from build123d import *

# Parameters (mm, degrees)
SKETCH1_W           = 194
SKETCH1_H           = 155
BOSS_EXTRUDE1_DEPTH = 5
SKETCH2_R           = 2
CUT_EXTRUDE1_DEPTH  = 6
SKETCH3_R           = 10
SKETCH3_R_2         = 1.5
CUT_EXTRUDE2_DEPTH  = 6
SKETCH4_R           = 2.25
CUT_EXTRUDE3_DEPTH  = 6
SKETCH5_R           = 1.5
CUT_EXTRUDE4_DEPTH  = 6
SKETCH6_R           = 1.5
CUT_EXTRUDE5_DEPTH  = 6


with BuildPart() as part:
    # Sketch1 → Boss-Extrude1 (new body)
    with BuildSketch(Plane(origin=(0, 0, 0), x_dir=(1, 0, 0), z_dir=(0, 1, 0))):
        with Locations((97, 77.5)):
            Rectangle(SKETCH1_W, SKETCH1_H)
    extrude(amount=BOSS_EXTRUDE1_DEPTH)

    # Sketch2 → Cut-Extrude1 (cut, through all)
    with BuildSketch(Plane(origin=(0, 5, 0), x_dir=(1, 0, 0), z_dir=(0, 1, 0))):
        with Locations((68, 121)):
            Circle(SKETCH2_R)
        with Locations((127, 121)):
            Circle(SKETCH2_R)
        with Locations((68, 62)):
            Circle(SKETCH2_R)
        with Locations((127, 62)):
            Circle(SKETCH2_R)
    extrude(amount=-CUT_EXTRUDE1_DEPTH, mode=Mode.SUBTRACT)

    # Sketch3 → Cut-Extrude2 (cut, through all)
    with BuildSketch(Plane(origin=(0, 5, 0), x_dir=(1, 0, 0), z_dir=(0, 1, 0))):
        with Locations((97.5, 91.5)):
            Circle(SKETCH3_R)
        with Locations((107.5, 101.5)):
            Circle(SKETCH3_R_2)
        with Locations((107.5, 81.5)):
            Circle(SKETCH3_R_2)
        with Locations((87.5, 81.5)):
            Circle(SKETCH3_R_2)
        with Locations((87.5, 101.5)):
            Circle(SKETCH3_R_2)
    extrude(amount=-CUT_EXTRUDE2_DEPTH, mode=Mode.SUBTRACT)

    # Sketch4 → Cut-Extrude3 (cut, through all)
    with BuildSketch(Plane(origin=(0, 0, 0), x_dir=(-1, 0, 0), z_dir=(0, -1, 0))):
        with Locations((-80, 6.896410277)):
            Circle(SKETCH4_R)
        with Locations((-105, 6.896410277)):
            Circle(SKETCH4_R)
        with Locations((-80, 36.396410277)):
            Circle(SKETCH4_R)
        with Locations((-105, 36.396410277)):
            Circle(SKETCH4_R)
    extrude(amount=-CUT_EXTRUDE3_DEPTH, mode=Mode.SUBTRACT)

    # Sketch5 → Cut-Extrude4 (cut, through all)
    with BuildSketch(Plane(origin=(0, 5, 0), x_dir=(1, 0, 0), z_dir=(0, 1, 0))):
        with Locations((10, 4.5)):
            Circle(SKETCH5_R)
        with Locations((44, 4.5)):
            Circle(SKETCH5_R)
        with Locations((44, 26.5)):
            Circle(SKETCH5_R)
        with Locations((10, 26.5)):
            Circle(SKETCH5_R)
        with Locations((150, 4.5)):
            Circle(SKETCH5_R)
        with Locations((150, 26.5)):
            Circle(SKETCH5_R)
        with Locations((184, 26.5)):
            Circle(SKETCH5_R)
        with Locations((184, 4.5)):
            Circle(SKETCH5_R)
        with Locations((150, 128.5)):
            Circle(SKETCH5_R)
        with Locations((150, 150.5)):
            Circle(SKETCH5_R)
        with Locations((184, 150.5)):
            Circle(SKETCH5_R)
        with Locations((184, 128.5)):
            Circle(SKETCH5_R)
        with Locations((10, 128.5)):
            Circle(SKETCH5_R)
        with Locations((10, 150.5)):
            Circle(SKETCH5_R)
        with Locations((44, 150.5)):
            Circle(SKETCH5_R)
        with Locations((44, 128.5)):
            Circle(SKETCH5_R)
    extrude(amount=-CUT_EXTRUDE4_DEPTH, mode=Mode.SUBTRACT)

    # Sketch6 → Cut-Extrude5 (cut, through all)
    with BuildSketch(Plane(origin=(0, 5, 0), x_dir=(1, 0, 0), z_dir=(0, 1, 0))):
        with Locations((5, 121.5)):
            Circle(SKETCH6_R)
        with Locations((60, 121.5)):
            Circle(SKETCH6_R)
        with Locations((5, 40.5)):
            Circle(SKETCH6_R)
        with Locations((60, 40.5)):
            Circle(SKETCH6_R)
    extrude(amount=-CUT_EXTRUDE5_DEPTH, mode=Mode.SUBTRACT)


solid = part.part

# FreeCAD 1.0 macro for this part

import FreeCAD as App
import Part
import Sketcher


def add_polygon(sketch, points):
    """Adds a closed chain of lines whose ends are joined by coincident constraints."""
    first, n = sketch.GeometryCount, len(points)
    for a, b in zip(points, points[1:] + points[:1]):
        sketch.addGeometry(Part.LineSegment(App.Vector(*a, 0), App.Vector(*b, 0)), False)
    for i in range(n):
        sketch.addConstraint(Sketcher.Constraint("Coincident", first + i, 2, first + (i + 1) % n, 1))

doc = App.newDocument("Part")
body = doc.addObject("PartDesign::Body", "Body")

# Sketch on XZ plane
sketch1 = body.newObject("Sketcher::SketchObject", "Sketch")
sketch1.AttachmentSupport = (doc.getObject("XZ_Plane"), [""])
sketch1.MapMode = "FlatFace"
add_polygon(sketch1, [(0, -155), (0, 0), (194, 0), (194, -155)])  # lines 0-3
sketch1.addConstraint(Sketcher.Constraint("Vertical", 0))
sketch1.addConstraint(Sketcher.Constraint("Horizontal", 1))
sketch1.addConstraint(Sketcher.Constraint("Vertical", 2))
sketch1.addConstraint(Sketcher.Constraint("Horizontal", 3))
sketch1.addConstraint(Sketcher.Constraint("Coincident", 0, 2, -1, 1))
sketch1.addConstraint(Sketcher.Constraint("DistanceX", 1, 1, 1, 2, 194.0))
sketch1.addConstraint(Sketcher.Constraint("DistanceY", 0, 1, 0, 2, 155.0))
pad1 = body.newObject("PartDesign::Pad", "Pad")
pad1.Profile = sketch1
pad1.Length = 5
pad1.Reversed = True

# Sketch on XZ plane
sketch2 = body.newObject("Sketcher::SketchObject", "Sketch001")
sketch2.AttachmentSupport = (doc.getObject("XZ_Plane"), [""])
sketch2.MapMode = "FlatFace"
sketch2.AttachmentOffset = App.Placement(App.Vector(0, 0, -5), App.Rotation())
sketch2.addGeometry(Part.Circle(App.Vector(68, -121, 0), App.Vector(0, 0, 1), 2), False)
sketch2.addGeometry(Part.Circle(App.Vector(127, -121, 0), App.Vector(0, 0, 1), 2), False)
sketch2.addGeometry(Part.Circle(App.Vector(68, -62, 0), App.Vector(0, 0, 1), 2), False)
sketch2.addGeometry(Part.Circle(App.Vector(127, -62, 0), App.Vector(0, 0, 1), 2), False)
sketch2.addConstraint(Sketcher.Constraint("Equal", 0, 1))
sketch2.addConstraint(Sketcher.Constraint("Equal", 1, 2))
sketch2.addConstraint(Sketcher.Constraint("Equal", 2, 3))
sketch2.addConstraint(Sketcher.Constraint("Horizontal", 0, 3, 1, 3))
sketch2.addConstraint(Sketcher.Constraint("Horizontal", 2, 3, 3, 3))
sketch2.addConstraint(Sketcher.Constraint("Vertical", 0, 3, 2, 3))
sketch2.addConstraint(Sketcher.Constraint("Vertical", 1, 3, 3, 3))
sketch2.addConstraint(Sketcher.Constraint("Diameter", 0, 4.0))
sketch2.addConstraint(Sketcher.Constraint("DistanceX", -1, 1, 0, 3, 68.0))
sketch2.addConstraint(Sketcher.Constraint("DistanceY", 0, 3, -1, 1, 121.0))
sketch2.addConstraint(Sketcher.Constraint("DistanceX", -1, 1, 1, 3, 127.0))
sketch2.addConstraint(Sketcher.Constraint("DistanceY", 2, 3, -1, 1, 62.0))
pocket1 = body.newObject("PartDesign::Pocket", "Pocket")
pocket1.Profile = sketch2
pocket1.Type = "ThroughAll"
pocket1.Reversed = True

# Sketch on XZ plane
sketch3 = body.newObject("Sketcher::SketchObject", "Sketch002")
sketch3.AttachmentSupport = (doc.getObject("XZ_Plane"), [""])
sketch3.MapMode = "FlatFace"
sketch3.AttachmentOffset = App.Placement(App.Vector(0, 0, -5), App.Rotation())
sketch3.addGeometry(Part.Circle(App.Vector(97.5, -91.5, 0), App.Vector(0, 0, 1), 10), False)
sketch3.addGeometry(Part.Circle(App.Vector(107.5, -101.5, 0), App.Vector(0, 0, 1), 1.5), False)
sketch3.addGeometry(Part.Circle(App.Vector(107.5, -81.5, 0), App.Vector(0, 0, 1), 1.5), False)
sketch3.addGeometry(Part.Circle(App.Vector(87.5, -81.5, 0), App.Vector(0, 0, 1), 1.5), False)
sketch3.addGeometry(Part.Circle(App.Vector(87.5, -101.5, 0), App.Vector(0, 0, 1), 1.5), False)
sketch3.addConstraint(Sketcher.Constraint("Equal", 1, 2))
sketch3.addConstraint(Sketcher.Constraint("Equal", 2, 3))
sketch3.addConstraint(Sketcher.Constraint("Equal", 3, 4))
sketch3.addConstraint(Sketcher.Constraint("Horizontal", 2, 3, 3, 3))
sketch3.addConstraint(Sketcher.Constraint("Horizontal", 1, 3, 4, 3))
sketch3.addConstraint(Sketcher.Constraint("Vertical", 1, 3, 2, 3))
sketch3.addConstraint(Sketcher.Constraint("Vertical", 3, 3, 4, 3))
sketch3.addConstraint(Sketcher.Constraint("Diameter", 0, 20.0))
sketch3.addConstraint(Sketcher.Constraint("Diameter", 1, 3.0))
sketch3.addConstraint(Sketcher.Constraint("DistanceX", 0, 3, 1, 3, 10.0))
sketch3.addConstraint(Sketcher.Constraint("DistanceY", 1, 3, 0, 3, 10.0))
sketch3.addConstraint(Sketcher.Constraint("DistanceY", 0, 3, 2, 3, 10.0))
sketch3.addConstraint(Sketcher.Constraint("DistanceX", 3, 3, 0, 3, 10.0))
sketch3.addConstraint(Sketcher.Constraint("DistanceX", -1, 1, 0, 3, 97.5))
sketch3.addConstraint(Sketcher.Constraint("DistanceY", 0, 3, -1, 1, 91.5))
pocket2 = body.newObject("PartDesign::Pocket", "Pocket001")
pocket2.Profile = sketch3
pocket2.Type = "ThroughAll"
pocket2.Reversed = True

# Sketch on XZ plane
sketch4 = body.newObject("Sketcher::SketchObject", "Sketch003")
sketch4.AttachmentSupport = (doc.getObject("XZ_Plane"), [""])
sketch4.MapMode = "FlatFace"
sketch4.addGeometry(Part.Circle(App.Vector(80, -6.89641, 0), App.Vector(0, 0, 1), 2.25), False)
sketch4.addGeometry(Part.Circle(App.Vector(105, -6.89641, 0), App.Vector(0, 0, 1), 2.25), False)
sketch4.addGeometry(Part.Circle(App.Vector(80, -36.39641, 0), App.Vector(0, 0, 1), 2.25), False)
sketch4.addGeometry(Part.Circle(App.Vector(105, -36.39641, 0), App.Vector(0, 0, 1), 2.25), False)
sketch4.addConstraint(Sketcher.Constraint("Equal", 0, 1))
sketch4.addConstraint(Sketcher.Constraint("Equal", 1, 2))
sketch4.addConstraint(Sketcher.Constraint("Equal", 2, 3))
sketch4.addConstraint(Sketcher.Constraint("Horizontal", 0, 3, 1, 3))
sketch4.addConstraint(Sketcher.Constraint("Horizontal", 2, 3, 3, 3))
sketch4.addConstraint(Sketcher.Constraint("Vertical", 0, 3, 2, 3))
sketch4.addConstraint(Sketcher.Constraint("Vertical", 1, 3, 3, 3))
sketch4.addConstraint(Sketcher.Constraint("Diameter", 0, 4.5))
sketch4.addConstraint(Sketcher.Constraint("DistanceX", -1, 1, 0, 3, 80.0))
sketch4.addConstraint(Sketcher.Constraint("DistanceX", -1, 1, 1, 3, 105.0))
sketch4.addConstraint(Sketcher.Constraint("DistanceY", 2, 3, 0, 3, 29.5))
sketch4.addConstraint(Sketcher.Constraint("DistanceY", 0, 3, -1, 1, 6.89641))
pocket3 = body.newObject("PartDesign::Pocket", "Pocket002")
pocket3.Profile = sketch4
pocket3.Type = "ThroughAll"

# Sketch on XZ plane
sketch5 = body.newObject("Sketcher::SketchObject", "Sketch004")
sketch5.AttachmentSupport = (doc.getObject("XZ_Plane"), [""])
sketch5.MapMode = "FlatFace"
sketch5.AttachmentOffset = App.Placement(App.Vector(0, 0, -5), App.Rotation())
sketch5.addGeometry(Part.Circle(App.Vector(10, -4.5, 0), App.Vector(0, 0, 1), 1.5), False)
sketch5.addGeometry(Part.Circle(App.Vector(44, -4.5, 0), App.Vector(0, 0, 1), 1.5), False)
sketch5.addGeometry(Part.Circle(App.Vector(44, -26.5, 0), App.Vector(0, 0, 1), 1.5), False)
sketch5.addGeometry(Part.Circle(App.Vector(10, -26.5, 0), App.Vector(0, 0, 1), 1.5), False)
sketch5.addGeometry(Part.Circle(App.Vector(150, -4.5, 0), App.Vector(0, 0, 1), 1.5), False)
sketch5.addGeometry(Part.Circle(App.Vector(150, -26.5, 0), App.Vector(0, 0, 1), 1.5), False)
sketch5.addGeometry(Part.Circle(App.Vector(184, -26.5, 0), App.Vector(0, 0, 1), 1.5), False)
sketch5.addGeometry(Part.Circle(App.Vector(184, -4.5, 0), App.Vector(0, 0, 1), 1.5), False)
sketch5.addGeometry(Part.Circle(App.Vector(150, -128.5, 0), App.Vector(0, 0, 1), 1.5), False)
sketch5.addGeometry(Part.Circle(App.Vector(150, -150.5, 0), App.Vector(0, 0, 1), 1.5), False)
sketch5.addGeometry(Part.Circle(App.Vector(184, -150.5, 0), App.Vector(0, 0, 1), 1.5), False)
sketch5.addGeometry(Part.Circle(App.Vector(184, -128.5, 0), App.Vector(0, 0, 1), 1.5), False)
sketch5.addGeometry(Part.Circle(App.Vector(10, -128.5, 0), App.Vector(0, 0, 1), 1.5), False)
sketch5.addGeometry(Part.Circle(App.Vector(10, -150.5, 0), App.Vector(0, 0, 1), 1.5), False)
sketch5.addGeometry(Part.Circle(App.Vector(44, -150.5, 0), App.Vector(0, 0, 1), 1.5), False)
sketch5.addGeometry(Part.Circle(App.Vector(44, -128.5, 0), App.Vector(0, 0, 1), 1.5), False)
sketch5.addConstraint(Sketcher.Constraint("Equal", 0, 1))
sketch5.addConstraint(Sketcher.Constraint("Equal", 1, 2))
sketch5.addConstraint(Sketcher.Constraint("Equal", 2, 3))
sketch5.addConstraint(Sketcher.Constraint("Equal", 3, 4))
sketch5.addConstraint(Sketcher.Constraint("Equal", 4, 5))
sketch5.addConstraint(Sketcher.Constraint("Equal", 5, 6))
sketch5.addConstraint(Sketcher.Constraint("Equal", 6, 7))
sketch5.addConstraint(Sketcher.Constraint("Equal", 7, 8))
sketch5.addConstraint(Sketcher.Constraint("Equal", 8, 9))
sketch5.addConstraint(Sketcher.Constraint("Equal", 9, 10))
sketch5.addConstraint(Sketcher.Constraint("Equal", 10, 11))
sketch5.addConstraint(Sketcher.Constraint("Equal", 11, 12))
sketch5.addConstraint(Sketcher.Constraint("Equal", 12, 13))
sketch5.addConstraint(Sketcher.Constraint("Equal", 13, 14))
sketch5.addConstraint(Sketcher.Constraint("Equal", 14, 15))
sketch5.addConstraint(Sketcher.Constraint("Horizontal", 0, 3, 1, 3))
sketch5.addConstraint(Sketcher.Constraint("Horizontal", 2, 3, 3, 3))
sketch5.addConstraint(Sketcher.Constraint("Horizontal", 1, 3, 4, 3))
sketch5.addConstraint(Sketcher.Constraint("Horizontal", 3, 3, 5, 3))
sketch5.addConstraint(Sketcher.Constraint("Horizontal", 5, 3, 6, 3))
sketch5.addConstraint(Sketcher.Constraint("Horizontal", 4, 3, 7, 3))
sketch5.addConstraint(Sketcher.Constraint("Horizontal", 9, 3, 10, 3))
sketch5.addConstraint(Sketcher.Constraint("Horizontal", 8, 3, 11, 3))
sketch5.addConstraint(Sketcher.Constraint("Horizontal", 11, 3, 12, 3))
sketch5.addConstraint(Sketcher.Constraint("Horizontal", 10, 3, 13, 3))
sketch5.addConstraint(Sketcher.Constraint("Horizontal", 13, 3, 14, 3))
sketch5.addConstraint(Sketcher.Constraint("Horizontal", 12, 3, 15, 3))
sketch5.addConstraint(Sketcher.Constraint("Vertical", 1, 3, 2, 3))
sketch5.addConstraint(Sketcher.Constraint("Vertical", 0, 3, 3, 3))
sketch5.addConstraint(Sketcher.Constraint("Vertical", 4, 3, 5, 3))
sketch5.addConstraint(Sketcher.Constraint("Vertical", 6, 3, 7, 3))
sketch5.addConstraint(Sketcher.Constraint("Vertical", 5, 3, 8, 3))
sketch5.addConstraint(Sketcher.Constraint("Vertical", 8, 3, 9, 3))
sketch5.addConstraint(Sketcher.Constraint("Vertical", 7, 3, 10, 3))
sketch5.addConstraint(Sketcher.Constraint("Vertical", 10, 3, 11, 3))
sketch5.addConstraint(Sketcher.Constraint("Vertical", 3, 3, 12, 3))
sketch5.addConstraint(Sketcher.Constraint("Vertical", 12, 3, 13, 3))
sketch5.addConstraint(Sketcher.Constraint("Vertical", 2, 3, 14, 3))
sketch5.addConstraint(Sketcher.Constraint("Vertical", 14, 3, 15, 3))
sketch5.addConstraint(Sketcher.Constraint("Diameter", 0, 3.0))
sketch5.addConstraint(Sketcher.Constraint("DistanceX", -1, 1, 0, 3, 10.0))
sketch5.addConstraint(Sketcher.Constraint("DistanceX", -1, 1, 1, 3, 44.0))
sketch5.addConstraint(Sketcher.Constraint("DistanceX", -1, 1, 4, 3, 150.0))
sketch5.addConstraint(Sketcher.Constraint("DistanceX", -1, 1, 6, 3, 184.0))
sketch5.addConstraint(Sketcher.Constraint("DistanceY", 2, 3, 1, 3, 22.0))
sketch5.addConstraint(Sketcher.Constraint("DistanceY", 8, 3, 5, 3, 102.0))
sketch5.addConstraint(Sketcher.Constraint("DistanceY", 9, 3, 8, 3, 22.0))
sketch5.addConstraint(Sketcher.Constraint("DistanceY", 0, 3, -1, 1, 4.5))
pocket4 = body.newObject("PartDesign::Pocket", "Pocket003")
pocket4.Profile = sketch5
pocket4.Type = "ThroughAll"
pocket4.Reversed = True

# Sketch on XZ plane
sketch6 = body.newObject("Sketcher::SketchObject", "Sketch005")
sketch6.AttachmentSupport = (doc.getObject("XZ_Plane"), [""])
sketch6.MapMode = "FlatFace"
sketch6.AttachmentOffset = App.Placement(App.Vector(0, 0, -5), App.Rotation())
sketch6.addGeometry(Part.Circle(App.Vector(5, -121.5, 0), App.Vector(0, 0, 1), 1.5), False)
sketch6.addGeometry(Part.Circle(App.Vector(60, -121.5, 0), App.Vector(0, 0, 1), 1.5), False)
sketch6.addGeometry(Part.Circle(App.Vector(5, -40.5, 0), App.Vector(0, 0, 1), 1.5), False)
sketch6.addGeometry(Part.Circle(App.Vector(60, -40.5, 0), App.Vector(0, 0, 1), 1.5), False)
sketch6.addConstraint(Sketcher.Constraint("Equal", 0, 1))
sketch6.addConstraint(Sketcher.Constraint("Equal", 1, 2))
sketch6.addConstraint(Sketcher.Constraint("Equal", 2, 3))
sketch6.addConstraint(Sketcher.Constraint("Horizontal", 0, 3, 1, 3))
sketch6.addConstraint(Sketcher.Constraint("Horizontal", 2, 3, 3, 3))
sketch6.addConstraint(Sketcher.Constraint("Vertical", 0, 3, 2, 3))
sketch6.addConstraint(Sketcher.Constraint("Vertical", 1, 3, 3, 3))
sketch6.addConstraint(Sketcher.Constraint("Diameter", 0, 3.0))
sketch6.addConstraint(Sketcher.Constraint("DistanceX", -1, 1, 0, 3, 5.0))
sketch6.addConstraint(Sketcher.Constraint("DistanceX", -1, 1, 1, 3, 60.0))
sketch6.addConstraint(Sketcher.Constraint("DistanceY", 0, 3, 2, 3, 81.0))
sketch6.addConstraint(Sketcher.Constraint("DistanceY", 0, 3, -1, 1, 121.5))
pocket5 = body.newObject("PartDesign::Pocket", "Pocket004")
pocket5.Profile = sketch6
pocket5.Type = "ThroughAll"
pocket5.Reversed = True

doc.recompute()
